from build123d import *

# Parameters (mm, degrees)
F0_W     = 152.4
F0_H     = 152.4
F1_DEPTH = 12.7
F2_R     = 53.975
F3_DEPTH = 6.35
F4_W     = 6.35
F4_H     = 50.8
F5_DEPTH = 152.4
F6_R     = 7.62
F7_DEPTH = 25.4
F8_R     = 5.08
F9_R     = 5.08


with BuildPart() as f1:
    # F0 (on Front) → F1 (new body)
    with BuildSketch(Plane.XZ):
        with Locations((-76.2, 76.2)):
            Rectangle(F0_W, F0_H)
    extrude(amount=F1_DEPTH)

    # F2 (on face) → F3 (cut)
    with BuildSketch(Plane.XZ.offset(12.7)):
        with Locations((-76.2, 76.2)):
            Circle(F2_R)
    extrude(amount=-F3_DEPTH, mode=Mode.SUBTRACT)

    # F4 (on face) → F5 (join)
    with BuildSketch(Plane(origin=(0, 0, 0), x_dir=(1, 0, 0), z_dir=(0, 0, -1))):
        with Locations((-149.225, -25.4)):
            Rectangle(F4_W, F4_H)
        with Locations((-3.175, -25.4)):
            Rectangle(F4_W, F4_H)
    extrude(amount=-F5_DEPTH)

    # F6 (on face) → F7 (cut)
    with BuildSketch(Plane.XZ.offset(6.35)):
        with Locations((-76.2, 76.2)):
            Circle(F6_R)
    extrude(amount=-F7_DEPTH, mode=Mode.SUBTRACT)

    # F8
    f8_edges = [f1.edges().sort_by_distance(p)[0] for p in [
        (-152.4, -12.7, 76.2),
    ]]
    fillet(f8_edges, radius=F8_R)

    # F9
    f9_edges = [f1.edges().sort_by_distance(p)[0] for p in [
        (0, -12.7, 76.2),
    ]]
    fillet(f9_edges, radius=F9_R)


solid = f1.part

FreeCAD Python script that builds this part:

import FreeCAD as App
import Part
import Sketcher
Q = App.Units.Quantity


def edges_at(feature, points):
    """Names of the edges that pass closest to the given points."""
    edges = feature.Shape.Edges
    near = lambda p: min(range(len(edges)), key=lambda i: edges[i].distToShape(Part.Vertex(*p))[0])
    return sorted({f"Edge{near(p) + 1}" for p in points})


def add_polygon(sketch, points):
    """Adds a closed chain of lines whose ends are joined by coincident constraints."""
    first, n = sketch.GeometryCount, len(points)
    for a, b in zip(points, points[1:] + points[:1]):
        sketch.addGeometry(Part.LineSegment(App.Vector(*a, 0), App.Vector(*b, 0)), False)
    for i in range(n):
        sketch.addConstraint(Sketcher.Constraint("Coincident", first + i, 2, first + (i + 1) % n, 1))

doc = App.newDocument("Part")
body = doc.addObject("PartDesign::Body", "Body")

sketch1 = doc.addObject("Sketcher::SketchObject", "Sketch")
body.addObject(sketch1)
sketch1.AttachmentSupport = (doc.XZ_Plane, [""])
sketch1.MapMode = "FlatFace"
add_polygon(sketch1, [(-152.4, 152.4), (-152.4, 0), (0, 0), (0, 152.4)])
sketch1.addConstraint([
    Sketcher.Constraint("Vertical", 0),
    Sketcher.Constraint("Horizontal", 1),
    Sketcher.Constraint("Vertical", 2),
    Sketcher.Constraint("Horizontal", 3),
    Sketcher.Constraint("Coincident", 1, 2, -1, 1),
    Sketcher.Constraint("Equal", 3, 0),
    Sketcher.Constraint("DistanceX", 1, 1, 1, 2, Q("6 in")),
])
pad1 = doc.addObject("PartDesign::Pad", "Pad")
body.addObject(pad1)
pad1.Profile = sketch1
pad1.Length = Q("0.5 in")

sketch2 = doc.addObject("Sketcher::SketchObject", "Sketch001")
body.addObject(sketch2)
sketch2.AttachmentSupport = (doc.XZ_Plane, [""])
sketch2.MapMode = "FlatFace"
sketch2.AttachmentOffset = App.Placement(App.Vector(0, 0, 0.5 * 25.4), App.Rotation())
sketch2.addGeometry(Part.Circle(App.Vector(-76.2, 76.2, 0), App.Vector(0, 0, 1), 53.975), False)
sketch2.addConstraint([
    Sketcher.Constraint("Diameter", 0, Q("4.25 in")),
    Sketcher.Constraint("DistanceX", 0, 3, -1, 1, Q("3 in")),
    Sketcher.Constraint("DistanceY", -1, 1, 0, 3, Q("3 in")),
])
pocket1 = doc.addObject("PartDesign::Pocket", "Pocket")
body.addObject(pocket1)
pocket1.Profile = sketch2
pocket1.Length = Q("0.25 in")

sketch3 = doc.addObject("Sketcher::SketchObject", "Sketch002")
body.addObject(sketch3)
sketch3.AttachmentSupport = (doc.XY_Plane, [""])
sketch3.MapMode = "FlatFace"
add_polygon(sketch3, [(-152.4, 0), (-152.4, 50.8), (-146.05, 50.8), (-146.05, 0)])
add_polygon(sketch3, [(-6.35, 0), (-6.35, 50.8), (0, 50.8), (0, 0)])
sketch3.addConstraint([
    Sketcher.Constraint("Vertical", 0),
    Sketcher.Constraint("Horizontal", 1),
    Sketcher.Constraint("Vertical", 2),
    Sketcher.Constraint("Horizontal", 3),
    Sketcher.Constraint("Vertical", 4),
    Sketcher.Constraint("Horizontal", 5),
    Sketcher.Constraint("Vertical", 6),
    Sketcher.Constraint("Horizontal", 7),
    Sketcher.Constraint("Coincident", 6, 2, -1, 1),
    Sketcher.Constraint("PointOnObject", 2, 2, -1),
    Sketcher.Constraint("Horizontal", 1, 2, 4, 2),
    Sketcher.Constraint("Equal", 3, 5),
    Sketcher.Constraint("DistanceY", 0, 1, 0, 2, Q("2 in")),
    Sketcher.Constraint("DistanceX", 0, 2, -1, 1, Q("6 in")),
    Sketcher.Constraint("DistanceX", 1, 1, 1, 2, Q("0.25 in")),
])
pad2 = doc.addObject("PartDesign::Pad", "Pad001")
body.addObject(pad2)
pad2.Profile = sketch3
pad2.Length = Q("6 in")

sketch4 = doc.addObject("Sketcher::SketchObject", "Sketch003")
body.addObject(sketch4)
sketch4.AttachmentSupport = (doc.XZ_Plane, [""])
sketch4.MapMode = "FlatFace"
sketch4.AttachmentOffset = App.Placement(App.Vector(0, 0, 0.25 * 25.4), App.Rotation())
sketch4.addGeometry(Part.Circle(App.Vector(-76.2, 76.2, 0), App.Vector(0, 0, 1), 7.62), False)
sketch4.addConstraint([
    Sketcher.Constraint("Diameter", 0, Q("0.6 in")),
    Sketcher.Constraint("DistanceX", 0, 3, -1, 1, Q("3 in")),
    Sketcher.Constraint("DistanceY", -1, 1, 0, 3, Q("3 in")),
])
pocket2 = doc.addObject("PartDesign::Pocket", "Pocket001")
body.addObject(pocket2)
pocket2.Profile = sketch4
pocket2.Length = Q("1 in")
doc.recompute()

fillet = doc.addObject("PartDesign::Fillet", "Fillet")
body.addObject(fillet)
fillet.Base = (pocket2, edges_at(pocket2, [(-152.4, -12.7, 76.2)]))
fillet.Radius = Q("0.2 in")
doc.recompute()

fillet2 = doc.addObject("PartDesign::Fillet", "Fillet001")
body.addObject(fillet2)
fillet2.Base = (fillet, edges_at(fillet, [(0, -12.7, 76.2)]))
fillet2.Radius = Q("0.2 in")

doc.recompute()
